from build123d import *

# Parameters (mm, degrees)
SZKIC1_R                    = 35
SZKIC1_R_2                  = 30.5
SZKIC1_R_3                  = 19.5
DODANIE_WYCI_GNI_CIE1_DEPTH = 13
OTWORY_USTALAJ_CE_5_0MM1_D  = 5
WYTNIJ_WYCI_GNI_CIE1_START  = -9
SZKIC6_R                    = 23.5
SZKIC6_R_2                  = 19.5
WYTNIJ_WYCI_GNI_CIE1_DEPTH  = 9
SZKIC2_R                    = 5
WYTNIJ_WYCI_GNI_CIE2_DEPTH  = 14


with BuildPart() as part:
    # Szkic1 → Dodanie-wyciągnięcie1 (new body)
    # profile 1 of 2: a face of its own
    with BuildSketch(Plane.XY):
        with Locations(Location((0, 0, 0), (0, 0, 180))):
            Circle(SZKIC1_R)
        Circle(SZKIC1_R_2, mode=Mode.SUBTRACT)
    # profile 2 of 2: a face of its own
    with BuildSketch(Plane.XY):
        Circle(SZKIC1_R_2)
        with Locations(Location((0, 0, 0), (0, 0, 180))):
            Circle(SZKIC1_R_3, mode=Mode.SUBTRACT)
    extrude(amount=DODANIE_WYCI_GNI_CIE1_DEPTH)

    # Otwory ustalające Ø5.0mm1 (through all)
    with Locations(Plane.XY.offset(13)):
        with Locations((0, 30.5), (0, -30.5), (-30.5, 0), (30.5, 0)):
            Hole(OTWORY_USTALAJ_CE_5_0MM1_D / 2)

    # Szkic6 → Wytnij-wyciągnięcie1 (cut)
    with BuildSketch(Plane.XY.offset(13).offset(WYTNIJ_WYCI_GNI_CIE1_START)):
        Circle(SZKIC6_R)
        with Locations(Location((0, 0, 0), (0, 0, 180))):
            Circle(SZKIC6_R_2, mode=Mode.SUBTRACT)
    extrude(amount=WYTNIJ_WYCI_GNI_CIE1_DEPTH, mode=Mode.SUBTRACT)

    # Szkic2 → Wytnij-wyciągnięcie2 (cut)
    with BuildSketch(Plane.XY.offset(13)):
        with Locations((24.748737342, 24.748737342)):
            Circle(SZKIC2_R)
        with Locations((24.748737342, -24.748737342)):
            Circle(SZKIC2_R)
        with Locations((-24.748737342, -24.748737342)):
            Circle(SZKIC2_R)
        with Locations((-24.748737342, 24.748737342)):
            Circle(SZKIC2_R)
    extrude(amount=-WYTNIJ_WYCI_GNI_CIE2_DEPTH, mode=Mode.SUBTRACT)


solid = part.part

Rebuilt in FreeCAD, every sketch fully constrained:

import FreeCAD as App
import Part
import Sketcher

V = App.Vector
Q = App.Units.Quantity

doc = App.newDocument("Part")
body = doc.addObject("PartDesign::Body", "Body")

# Sketch on XY plane
sketch1 = body.newObject("Sketcher::SketchObject", "Sketch")
sketch1.AttachmentSupport = (doc.getObject("XY_Plane"), [""])
sketch1.MapMode = "FlatFace"
sketch1.addGeometry([
    Part.Circle(V(0, 0, 0), V(0, 0, 1), 35),
    Part.Circle(V(0, 0, 0), V(0, 0, 1), 20),
], False)
sketch1.addConstraint([
    Sketcher.Constraint("Coincident", 0, 3, -1, 1),
    Sketcher.Constraint("Coincident", 1, 3, -1, 1),
    Sketcher.Constraint("Diameter", 0, Q("70 mm")),
    Sketcher.Constraint("Diameter", 1, Q("39 mm")),
])
pad1 = body.newObject("PartDesign::Pad", "Pad")
pad1.Profile = sketch1
pad1.Length = 13

# Sketch on XY plane
sketch2 = body.newObject("Sketcher::SketchObject", "Sketch001")
sketch2.AttachmentSupport = (doc.getObject("XY_Plane"), [""])
sketch2.MapMode = "FlatFace"
sketch2.AttachmentOffset = App.Placement(V(0, 0, 13), App.Rotation())
sketch2.addGeometry([
    Part.Circle(V(0, 30.5, 0), V(0, 0, 1), 2.5),
    Part.Circle(V(0, -30.5, 0), V(0, 0, 1), 2.5),
    Part.Circle(V(-30.5, 0, 0), V(0, 0, 1), 2.5),
    Part.Circle(V(30.5, 0, 0), V(0, 0, 1), 2.5),
], False)
sketch2.addConstraint([
    Sketcher.Constraint("Equal", 0, 1),
    Sketcher.Constraint("Equal", 1, 2),
    Sketcher.Constraint("Equal", 2, 3),
    Sketcher.Constraint("Symmetric", 0, 3, 1, 3, -1, 1),
    Sketcher.Constraint("Symmetric", 2, 3, 3, 3, -1, 1),
    Sketcher.Constraint("PointOnObject", 0, 3, -2),
    Sketcher.Constraint("PointOnObject", 2, 3, -1),
    Sketcher.Constraint("Diameter", 0, Q("5 mm")),
    Sketcher.Constraint("DistanceY", 1, 3, 0, 3, Q("61 mm")),
    Sketcher.Constraint("DistanceX", 2, 3, 3, 3, Q("61 mm")),
])
doc.recompute()
hole = body.newObject("PartDesign::Hole", "Hole")
hole.Profile = sketch2
hole.ThreadType = "None"
hole.Diameter = 5
hole.DepthType = "ThroughAll"

# Sketch on XY plane
sketch3 = body.newObject("Sketcher::SketchObject", "Sketch002")
sketch3.AttachmentSupport = (doc.getObject("XY_Plane"), [""])
sketch3.MapMode = "FlatFace"
sketch3.AttachmentOffset = App.Placement(V(0, 0, 4), App.Rotation())
sketch3.addGeometry([
    Part.Circle(V(0, 0, 0), V(0, 0, 1), 24),
    Part.Circle(V(0, 0, 0), V(0, 0, 1), 20),
], False)
sketch3.addConstraint([
    Sketcher.Constraint("Coincident", 0, 3, -1, 1),
    Sketcher.Constraint("Coincident", 1, 3, -1, 1),
    Sketcher.Constraint("Diameter", 0, Q("47 mm")),
    Sketcher.Constraint("Diameter", 1, Q("39 mm")),
])
pocket1 = body.newObject("PartDesign::Pocket", "Pocket")
pocket1.Profile = sketch3
pocket1.Length = 9
pocket1.Reversed = True

# Sketch on XY plane
sketch4 = body.newObject("Sketcher::SketchObject", "Sketch003")
sketch4.AttachmentSupport = (doc.getObject("XY_Plane"), [""])
sketch4.MapMode = "FlatFace"
sketch4.AttachmentOffset = App.Placement(V(0, 0, 13), App.Rotation())
sketch4.addGeometry([
    Part.Circle(V(25, 25, 0), V(0, 0, 1), 5),
    Part.Circle(V(25, -25, 0), V(0, 0, 1), 5),
    Part.Circle(V(-25, -25, 0), V(0, 0, 1), 5),
    Part.Circle(V(-25, 25, 0), V(0, 0, 1), 5),
], False)
sketch4.addConstraint([
    Sketcher.Constraint("Equal", 0, 1),
    Sketcher.Constraint("Equal", 1, 2),
    Sketcher.Constraint("Equal", 2, 3),
    Sketcher.Constraint("Symmetric", 0, 3, 2, 3, -1, 1),
    Sketcher.Constraint("Symmetric", 1, 3, 3, 3, -1, 1),
    Sketcher.Constraint("Symmetric", 1, 3, 2, 3, -2),
    Sketcher.Constraint("Diameter", 0, Q("10 mm")),
    Sketcher.Constraint("DistanceX", -1, 1, 0, 3, Q("24.748737 mm")),
    Sketcher.Constraint("DistanceY", -1, 1, 0, 3, Q("24.748737 mm")),
])
pocket2 = body.newObject("PartDesign::Pocket", "Pocket001")
pocket2.Profile = sketch4
pocket2.Length = 14

doc.recompute()
